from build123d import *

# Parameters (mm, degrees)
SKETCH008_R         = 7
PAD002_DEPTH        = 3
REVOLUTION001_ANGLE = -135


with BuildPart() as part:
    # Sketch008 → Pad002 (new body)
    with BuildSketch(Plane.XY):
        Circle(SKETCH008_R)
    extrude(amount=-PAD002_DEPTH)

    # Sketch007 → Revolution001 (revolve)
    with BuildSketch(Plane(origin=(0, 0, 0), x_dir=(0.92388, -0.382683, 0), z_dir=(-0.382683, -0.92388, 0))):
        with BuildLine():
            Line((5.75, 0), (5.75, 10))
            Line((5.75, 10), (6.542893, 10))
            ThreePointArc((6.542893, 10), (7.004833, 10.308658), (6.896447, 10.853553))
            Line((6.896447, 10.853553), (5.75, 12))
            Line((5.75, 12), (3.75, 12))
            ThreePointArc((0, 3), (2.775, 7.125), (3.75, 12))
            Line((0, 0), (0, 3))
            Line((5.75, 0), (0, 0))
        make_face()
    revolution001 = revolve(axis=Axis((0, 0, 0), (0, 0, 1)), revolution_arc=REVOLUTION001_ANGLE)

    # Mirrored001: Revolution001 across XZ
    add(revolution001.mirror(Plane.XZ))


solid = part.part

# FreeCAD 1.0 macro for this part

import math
import FreeCAD as App
import Part
import Sketcher

V = App.Vector
Q = App.Units.Quantity

doc = App.newDocument("Part")
body = doc.addObject("PartDesign::Body", "Body")

sketch1 = body.newObject("Sketcher::SketchObject", "Sketch")
sketch1.AttachmentSupport = (doc.getObject("XY_Plane"), [""])
sketch1.MapMode = "FlatFace"
sketch1.addGeometry(Part.Circle(V(0, 0, 0), V(0, 0, 1), 7), False)
sketch1.addConstraint(Sketcher.Constraint("Coincident", 0, 3, -1, 1))
sketch1.addConstraint(Sketcher.Constraint("Diameter", 0, Q("14 mm")))
pad1 = body.newObject("PartDesign::Pad", "Pad")
pad1.Profile = sketch1
pad1.Length = 3
pad1.Reversed = True

sketch2 = body.newObject("Sketcher::SketchObject", "Sketch001")
sketch2.Placement = App.Placement(V(0, 0, 0), App.Rotation(V(0.923879754, -0.382682898, 0), V(0, 0, 1), V(-0.382682898, -0.923879754, 0), "ZXY"))
sketch2.addGeometry(Part.LineSegment(V(5.75, 0, 0), V(5.75, 10, 0)), False)
sketch2.addGeometry(Part.LineSegment(V(5.75, 10, 0), V(6.54, 10, 0)), False)
sketch2.addGeometry(Part.ArcOfCircle(Part.Circle(V(6.54, 10.5, 0), V(0, 0, 1), 0.5), math.radians(-90), math.radians(45)), False)
sketch2.addGeometry(Part.LineSegment(V(6.9, 10.85, 0), V(5.75, 12, 0)), False)
sketch2.addGeometry(Part.LineSegment(V(5.75, 12, 0), V(3.75, 12, 0)), False)
sketch2.addGeometry(Part.ArcOfCircle(Part.Circle(V(-8.93, 12, 0), V(0, 0, 1), 12.68), math.radians(-45), math.radians(0)), False)
sketch2.addGeometry(Part.LineSegment(V(0, 3, 0), V(0, 0, 0)), False)
sketch2.addGeometry(Part.LineSegment(V(0, 0, 0), V(5.75, 0, 0)), False)
sketch2.addConstraint(Sketcher.Constraint("Coincident", 0, 2, 1, 1))
sketch2.addConstraint(Sketcher.Constraint("Tangent", 1, 2, 2, 1))
sketch2.addConstraint(Sketcher.Constraint("Tangent", 2, 2, 3, 1))
sketch2.addConstraint(Sketcher.Constraint("Coincident", 3, 2, 4, 1))
sketch2.addConstraint(Sketcher.Constraint("Coincident", 4, 2, 5, 2))
sketch2.addConstraint(Sketcher.Constraint("Coincident", 5, 1, 6, 1))
sketch2.addConstraint(Sketcher.Constraint("Coincident", 6, 2, 7, 1))
sketch2.addConstraint(Sketcher.Constraint("Coincident", 7, 2, 0, 1))
sketch2.addConstraint(Sketcher.Constraint("Vertical", 0))
sketch2.addConstraint(Sketcher.Constraint("Horizontal", 1))
sketch2.addConstraint(Sketcher.Constraint("Horizontal", 4))
sketch2.addConstraint(Sketcher.Constraint("Vertical", 6))
sketch2.addConstraint(Sketcher.Constraint("Horizontal", 7))
sketch2.addConstraint(Sketcher.Constraint("Coincident", 6, 2, -1, 1))
sketch2.addConstraint(Sketcher.Constraint("Horizontal", 5, 3, 3, 2))
sketch2.addConstraint(Sketcher.Constraint("Vertical", 0, 2, 3, 2))
sketch2.addConstraint(Sketcher.Constraint("Radius", 2, Q("0.5 mm")))
sketch2.addConstraint(Sketcher.Constraint("DistanceX", 4, 2, 4, 1, Q("2 mm")))
sketch2.addConstraint(Sketcher.Constraint("DistanceY", 0, 1, 0, 2, Q("10 mm")))
sketch2.addConstraint(Sketcher.Constraint("DistanceY", 6, 2, 6, 1, Q("3 mm")))
sketch2.addConstraint(Sketcher.Constraint("Angle", 3, Q("135 deg")))
sketch2.addConstraint(Sketcher.Constraint("DistanceY", -1, 1, 5, 3, Q("12 mm")))
sketch2.addConstraint(Sketcher.Constraint("Radius", 5, Q("12.675 mm")))
revolution = body.newObject("PartDesign::Revolution", "Revolution")
revolution.Profile = sketch2
revolution.ReferenceAxis = (sketch2, ["V_Axis"])
revolution.Angle = 135
revolution.Reversed = True
doc.recompute()

mirrored = body.newObject("PartDesign::Mirrored", "Mirrored")
mirrored.Originals = [revolution]
mirrored.MirrorPlane = (doc.getObject("XZ_Plane"), [""])
body.Tip = mirrored

doc.recompute()
